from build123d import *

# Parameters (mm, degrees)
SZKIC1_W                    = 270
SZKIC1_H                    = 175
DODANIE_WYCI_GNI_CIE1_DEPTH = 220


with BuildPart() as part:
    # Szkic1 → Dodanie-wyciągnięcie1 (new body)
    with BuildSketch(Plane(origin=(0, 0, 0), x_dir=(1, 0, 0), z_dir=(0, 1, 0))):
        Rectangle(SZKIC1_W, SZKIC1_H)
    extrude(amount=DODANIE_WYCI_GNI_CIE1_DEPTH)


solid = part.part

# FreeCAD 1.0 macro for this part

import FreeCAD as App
import Part
import Sketcher
from FreeCAD import Vector


def add_polygon(sketch, points):
    """Adds a closed chain of lines whose ends are joined by coincident constraints."""
    first, n = sketch.GeometryCount, len(points)
    for a, b in zip(points, points[1:] + points[:1]):
        sketch.addGeometry(Part.LineSegment(App.Vector(*a, 0), App.Vector(*b, 0)), False)
    for i in range(n):
        sketch.addConstraint(Sketcher.Constraint("Coincident", first + i, 2, first + (i + 1) % n, 1))

doc = App.newDocument("Part")
body = doc.addObject("PartDesign::Body", "Body")

sketch1 = body.newObject("Sketcher::SketchObject", "Sketch")
sketch1.AttachmentSupport = (doc.getObject("XZ_Plane"), [""])
sketch1.MapMode = "FlatFace"
add_polygon(sketch1, [(-135, -87.5), (-135, 87.5), (135, 87.5), (135, -87.5)])
sketch1.addConstraint([
    Sketcher.Constraint("Vertical", 0),
    Sketcher.Constraint("Horizontal", 1),
    Sketcher.Constraint("Vertical", 2),
    Sketcher.Constraint("Horizontal", 3),
    Sketcher.Constraint("Symmetric", 0, 2, 2, 2, -1, 1),
    Sketcher.Constraint("DistanceX", 1, 1, 1, 2, 270.0),
    Sketcher.Constraint("DistanceY", 0, 1, 0, 2, 175.0),
])
pad1 = body.newObject("PartDesign::Pad", "Pad")
pad1.Profile = sketch1
pad1.Length = 220
pad1.Reversed = True

doc.recompute()
